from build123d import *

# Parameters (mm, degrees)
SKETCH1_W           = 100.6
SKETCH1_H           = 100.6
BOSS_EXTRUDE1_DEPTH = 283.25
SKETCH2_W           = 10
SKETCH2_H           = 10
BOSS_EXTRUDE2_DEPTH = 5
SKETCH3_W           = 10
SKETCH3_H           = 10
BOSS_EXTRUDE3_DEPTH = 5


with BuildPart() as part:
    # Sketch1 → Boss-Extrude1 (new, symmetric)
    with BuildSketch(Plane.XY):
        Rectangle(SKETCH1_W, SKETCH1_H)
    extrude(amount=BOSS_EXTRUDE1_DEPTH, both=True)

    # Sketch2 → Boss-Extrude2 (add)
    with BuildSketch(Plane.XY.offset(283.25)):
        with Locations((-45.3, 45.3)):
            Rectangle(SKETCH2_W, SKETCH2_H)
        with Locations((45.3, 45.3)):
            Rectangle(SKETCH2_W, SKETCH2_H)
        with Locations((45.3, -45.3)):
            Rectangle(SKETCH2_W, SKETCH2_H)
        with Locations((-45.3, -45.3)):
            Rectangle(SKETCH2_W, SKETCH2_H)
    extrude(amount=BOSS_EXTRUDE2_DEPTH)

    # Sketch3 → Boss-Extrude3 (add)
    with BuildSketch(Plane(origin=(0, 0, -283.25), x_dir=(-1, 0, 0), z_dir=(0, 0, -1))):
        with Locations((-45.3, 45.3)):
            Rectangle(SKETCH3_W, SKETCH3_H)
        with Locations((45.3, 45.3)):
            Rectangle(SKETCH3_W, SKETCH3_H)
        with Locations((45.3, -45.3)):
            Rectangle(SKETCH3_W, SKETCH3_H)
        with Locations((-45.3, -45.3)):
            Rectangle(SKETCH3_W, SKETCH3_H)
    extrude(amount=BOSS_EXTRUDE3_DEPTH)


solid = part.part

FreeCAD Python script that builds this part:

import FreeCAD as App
import Part
import Sketcher
from FreeCAD import Vector


def add_polygon(sketch, points):
    """Adds a closed chain of lines whose ends are joined by coincident constraints."""
    first, n = sketch.GeometryCount, len(points)
    for a, b in zip(points, points[1:] + points[:1]):
        sketch.addGeometry(Part.LineSegment(App.Vector(*a, 0), App.Vector(*b, 0)), False)
    for i in range(n):
        sketch.addConstraint(Sketcher.Constraint("Coincident", first + i, 2, first + (i + 1) % n, 1))

doc = App.newDocument("Part")
body = doc.addObject("PartDesign::Body", "Body")

sketch1 = body.newObject("Sketcher::SketchObject", "Sketch")
sketch1.AttachmentSupport = (doc.getObject("XY_Plane"), [""])
sketch1.MapMode = "FlatFace"
add_polygon(sketch1, [(-50, 50), (-50, -50), (50, -50), (50, 50)])
sketch1.addConstraint([
    Sketcher.Constraint("Vertical", 0),
    Sketcher.Constraint("Horizontal", 1),
    Sketcher.Constraint("Vertical", 2),
    Sketcher.Constraint("Horizontal", 3),
    Sketcher.Constraint("Symmetric", 0, 2, 2, 2, -1, 1),
    Sketcher.Constraint("Equal", 3, 0),
    Sketcher.Constraint("DistanceX", 1, 1, 1, 2, 100.6),
])
pad1 = body.newObject("PartDesign::Pad", "Pad")
pad1.Profile = sketch1
pad1.Length = 566.5
pad1.Midplane = True

sketch2 = body.newObject("Sketcher::SketchObject", "Sketch001")
sketch2.AttachmentSupport = (doc.getObject("XY_Plane"), [""])
sketch2.MapMode = "FlatFace"
sketch2.AttachmentOffset = App.Placement(Vector(0, 0, 283.25), App.Rotation())
add_polygon(sketch2, [(-50, 50), (-50, 40), (-40, 40), (-40, 50)])
add_polygon(sketch2, [(40, 50), (40, 40), (50, 40), (50, 50)])
add_polygon(sketch2, [(40, -40), (40, -50), (50, -50), (50, -40)])
add_polygon(sketch2, [(-50, -40), (-50, -50), (-40, -50), (-40, -40)])
sketch2.addConstraint([
    Sketcher.Constraint("Vertical", 0),
    Sketcher.Constraint("Horizontal", 1),
    Sketcher.Constraint("Vertical", 2),
    Sketcher.Constraint("Horizontal", 3),
    Sketcher.Constraint("Vertical", 4),
    Sketcher.Constraint("Horizontal", 5),
    Sketcher.Constraint("Vertical", 6),
    Sketcher.Constraint("Horizontal", 7),
    Sketcher.Constraint("Vertical", 8),
    Sketcher.Constraint("Horizontal", 9),
    Sketcher.Constraint("Vertical", 10),
    Sketcher.Constraint("Horizontal", 11),
    Sketcher.Constraint("Vertical", 12),
    Sketcher.Constraint("Horizontal", 13),
    Sketcher.Constraint("Vertical", 14),
    Sketcher.Constraint("Horizontal", 15),
    Sketcher.Constraint("Symmetric", 2, 2, 8, 2, -1, 1),
    Sketcher.Constraint("Symmetric", 0, 2, 10, 2, -1, 1),
    Sketcher.Constraint("Symmetric", 6, 2, 12, 2, -1, 1),
    Sketcher.Constraint("Symmetric", 4, 2, 14, 2, -1, 1),
    Sketcher.Constraint("Symmetric", 1, 2, 4, 2, -2),
    Sketcher.Constraint("Symmetric", 3, 2, 6, 2, -2),
    Sketcher.Constraint("Equal", 15, 0),
    Sketcher.Constraint("DistanceX", 1, 1, 1, 2, 10.0),
    Sketcher.Constraint("DistanceX", 0, 2, -1, 1, 50.3),
    Sketcher.Constraint("DistanceY", -1, 1, 0, 2, 40.3),
])
pad2 = body.newObject("PartDesign::Pad", "Pad001")
pad2.Profile = sketch2
pad2.Length = 5

sketch3 = body.newObject("Sketcher::SketchObject", "Sketch002")
sketch3.AttachmentSupport = (doc.getObject("XY_Plane"), [""])
sketch3.MapMode = "FlatFace"
sketch3.AttachmentOffset = App.Placement(Vector(0, 0, -283.25), App.Rotation())
add_polygon(sketch3, [(50, 50), (50, 40), (40, 40), (40, 50)])
add_polygon(sketch3, [(-40, 50), (-40, 40), (-50, 40), (-50, 50)])
add_polygon(sketch3, [(-40, -40), (-40, -50), (-50, -50), (-50, -40)])
add_polygon(sketch3, [(50, -40), (50, -50), (40, -50), (40, -40)])
sketch3.addConstraint([
    Sketcher.Constraint("Vertical", 0),
    Sketcher.Constraint("Horizontal", 1),
    Sketcher.Constraint("Vertical", 2),
    Sketcher.Constraint("Horizontal", 3),
    Sketcher.Constraint("Vertical", 4),
    Sketcher.Constraint("Horizontal", 5),
    Sketcher.Constraint("Vertical", 6),
    Sketcher.Constraint("Horizontal", 7),
    Sketcher.Constraint("Vertical", 8),
    Sketcher.Constraint("Horizontal", 9),
    Sketcher.Constraint("Vertical", 10),
    Sketcher.Constraint("Horizontal", 11),
    Sketcher.Constraint("Vertical", 12),
    Sketcher.Constraint("Horizontal", 13),
    Sketcher.Constraint("Vertical", 14),
    Sketcher.Constraint("Horizontal", 15),
    Sketcher.Constraint("Symmetric", 2, 2, 8, 2, -1, 1),
    Sketcher.Constraint("Symmetric", 0, 2, 10, 2, -1, 1),
    Sketcher.Constraint("Symmetric", 6, 2, 12, 2, -1, 1),
    Sketcher.Constraint("Symmetric", 4, 2, 14, 2, -1, 1),
    Sketcher.Constraint("Symmetric", 1, 2, 4, 2, -2),
    Sketcher.Constraint("Symmetric", 3, 2, 6, 2, -2),
    Sketcher.Constraint("Equal", 15, 0),
    Sketcher.Constraint("DistanceX", 1, 2, 1, 1, 10.0),
    Sketcher.Constraint("DistanceX", -1, 1, 0, 2, 50.3),
    Sketcher.Constraint("DistanceY", -1, 1, 0, 2, 40.3),
])
pad3 = body.newObject("PartDesign::Pad", "Pad002")
pad3.Profile = sketch3
pad3.Length = 5
pad3.Reversed = True

doc.recompute()
